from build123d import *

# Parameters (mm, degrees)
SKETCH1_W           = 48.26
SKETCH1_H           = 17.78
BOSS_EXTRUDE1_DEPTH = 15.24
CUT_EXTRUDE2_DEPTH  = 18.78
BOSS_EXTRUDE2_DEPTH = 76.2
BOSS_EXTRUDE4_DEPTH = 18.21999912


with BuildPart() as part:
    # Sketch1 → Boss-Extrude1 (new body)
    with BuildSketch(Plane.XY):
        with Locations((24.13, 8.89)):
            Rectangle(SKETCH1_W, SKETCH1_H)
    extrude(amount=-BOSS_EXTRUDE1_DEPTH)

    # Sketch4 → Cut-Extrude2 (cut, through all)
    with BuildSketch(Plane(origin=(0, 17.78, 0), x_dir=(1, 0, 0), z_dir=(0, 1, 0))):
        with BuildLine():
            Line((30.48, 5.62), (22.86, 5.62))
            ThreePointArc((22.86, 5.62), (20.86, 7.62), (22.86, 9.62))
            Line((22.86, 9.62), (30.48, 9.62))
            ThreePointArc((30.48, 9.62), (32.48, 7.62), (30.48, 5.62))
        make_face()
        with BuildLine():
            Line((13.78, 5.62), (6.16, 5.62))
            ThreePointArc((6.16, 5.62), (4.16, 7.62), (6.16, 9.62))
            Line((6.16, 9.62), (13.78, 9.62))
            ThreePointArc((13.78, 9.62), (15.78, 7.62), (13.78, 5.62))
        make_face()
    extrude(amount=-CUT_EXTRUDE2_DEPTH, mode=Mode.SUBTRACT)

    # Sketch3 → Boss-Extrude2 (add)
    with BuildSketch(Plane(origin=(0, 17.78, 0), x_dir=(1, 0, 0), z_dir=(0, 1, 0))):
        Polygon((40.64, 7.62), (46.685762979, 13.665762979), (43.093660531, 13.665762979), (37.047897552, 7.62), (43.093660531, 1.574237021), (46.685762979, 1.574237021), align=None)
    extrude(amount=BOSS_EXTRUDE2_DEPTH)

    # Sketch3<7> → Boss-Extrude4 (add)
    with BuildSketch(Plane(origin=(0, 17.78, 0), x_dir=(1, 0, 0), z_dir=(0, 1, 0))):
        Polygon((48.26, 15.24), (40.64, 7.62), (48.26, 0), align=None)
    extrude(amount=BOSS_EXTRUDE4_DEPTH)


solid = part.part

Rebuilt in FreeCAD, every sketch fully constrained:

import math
import FreeCAD as App
import Part
import Sketcher
from FreeCAD import Vector
Q = App.Units.Quantity

doc = App.newDocument("Part")
body = doc.addObject("PartDesign::Body", "Body")

# Sketch on XY plane
sketch1 = body.newObject("Sketcher::SketchObject", "Sketch")
sketch1.AttachmentSupport = (doc.getObject("XY_Plane"), [""])
sketch1.MapMode = "FlatFace"
sketch1.addGeometry(Part.LineSegment(Vector(0, 18, 0), Vector(0, 0, 0)), False)
sketch1.addGeometry(Part.LineSegment(Vector(0, 0, 0), Vector(48, 0, 0)), False)
sketch1.addGeometry(Part.LineSegment(Vector(48, 0, 0), Vector(48, 18, 0)), False)
sketch1.addGeometry(Part.LineSegment(Vector(48, 18, 0), Vector(0, 18, 0)), False)
sketch1.addConstraint(Sketcher.Constraint("Coincident", 0, 2, 1, 1))
sketch1.addConstraint(Sketcher.Constraint("Coincident", 1, 2, 2, 1))
sketch1.addConstraint(Sketcher.Constraint("Coincident", 2, 2, 3, 1))
sketch1.addConstraint(Sketcher.Constraint("Coincident", 3, 2, 0, 1))
sketch1.addConstraint(Sketcher.Constraint("Vertical", 0))
sketch1.addConstraint(Sketcher.Constraint("Horizontal", 1))
sketch1.addConstraint(Sketcher.Constraint("Vertical", 2))
sketch1.addConstraint(Sketcher.Constraint("Horizontal", 3))
sketch1.addConstraint(Sketcher.Constraint("Coincident", 0, 2, -1, 1))
sketch1.addConstraint(Sketcher.Constraint("DistanceX", 1, 1, 1, 2, Q("1.9 in")))
sketch1.addConstraint(Sketcher.Constraint("DistanceY", 0, 2, 0, 1, Q("0.7 in")))
pad1 = body.newObject("PartDesign::Pad", "Pad")
pad1.Profile = sketch1
pad1.Length = Q("0.6 in")
pad1.Reversed = True

# Sketch on XZ plane
sketch2 = body.newObject("Sketcher::SketchObject", "Sketch001")
sketch2.AttachmentSupport = (doc.getObject("XZ_Plane"), [""])
sketch2.MapMode = "FlatFace"
sketch2.AttachmentOffset = App.Placement(Vector(0, 0, -0.7 * 25.4), App.Rotation())
sketch2.addGeometry(Part.LineSegment(Vector(22.9, -5.6, 0), Vector(30.5, -5.6, 0)), False)
sketch2.addGeometry(Part.ArcOfCircle(Part.Circle(Vector(30.5, -7.6, 0), Vector(0, 0, 1), 2), math.radians(-90), math.radians(90)), False)
sketch2.addGeometry(Part.LineSegment(Vector(30.5, -9.6, 0), Vector(22.9, -9.6, 0)), False)
sketch2.addGeometry(Part.ArcOfCircle(Part.Circle(Vector(22.9, -7.6, 0), Vector(0, 0, 1), 2), math.radians(90), math.radians(270)), False)
sketch2.addGeometry(Part.LineSegment(Vector(6.2, -5.6, 0), Vector(13.8, -5.6, 0)), False)
sketch2.addGeometry(Part.ArcOfCircle(Part.Circle(Vector(13.8, -7.6, 0), Vector(0, 0, 1), 2), math.radians(-90), math.radians(90)), False)
sketch2.addGeometry(Part.LineSegment(Vector(13.8, -9.6, 0), Vector(6.2, -9.6, 0)), False)
sketch2.addGeometry(Part.ArcOfCircle(Part.Circle(Vector(6.2, -7.6, 0), Vector(0, 0, 1), 2), math.radians(90), math.radians(270)), False)
sketch2.addConstraint(Sketcher.Constraint("Tangent", 0, 2, 1, 2))
sketch2.addConstraint(Sketcher.Constraint("Tangent", 1, 1, 2, 1))
sketch2.addConstraint(Sketcher.Constraint("Tangent", 2, 2, 3, 2))
sketch2.addConstraint(Sketcher.Constraint("Tangent", 3, 1, 0, 1))
sketch2.addConstraint(Sketcher.Constraint("Tangent", 4, 2, 5, 2))
sketch2.addConstraint(Sketcher.Constraint("Tangent", 5, 1, 6, 1))
sketch2.addConstraint(Sketcher.Constraint("Tangent", 6, 2, 7, 2))
sketch2.addConstraint(Sketcher.Constraint("Tangent", 7, 1, 4, 1))
sketch2.addConstraint(Sketcher.Constraint("Horizontal", 0))
sketch2.addConstraint(Sketcher.Constraint("Horizontal", 2))
sketch2.addConstraint(Sketcher.Constraint("Horizontal", 4))
sketch2.addConstraint(Sketcher.Constraint("Horizontal", 6))
sketch2.addConstraint(Sketcher.Constraint("Equal", 3, 5))
sketch2.addConstraint(Sketcher.Constraint("Horizontal", 3, 3, 5, 3))
sketch2.addConstraint(Sketcher.Constraint("Equal", 2, 4))
sketch2.addConstraint(Sketcher.Constraint("DistanceX", 0, 1, 0, 2, Q("0.3 in")))
sketch2.addConstraint(Sketcher.Constraint("DistanceX", -1, 1, 1, 3, Q("1.2 in")))
sketch2.addConstraint(Sketcher.Constraint("DistanceY", 1, 3, -1, 1, Q("0.3 in")))
sketch2.addConstraint(Sketcher.Constraint("Radius", 1, 2.0))
sketch2.addConstraint(Sketcher.Constraint("DistanceX", -1, 1, 5, 3, 13.78))
pocket1 = body.newObject("PartDesign::Pocket", "Pocket")
pocket1.Profile = sketch2
pocket1.Type = "ThroughAll"
pocket1.Reversed = True

# Sketch on XZ plane
sketch3 = body.newObject("Sketcher::SketchObject", "Sketch002")
sketch3.AttachmentSupport = (doc.getObject("XZ_Plane"), [""])
sketch3.MapMode = "FlatFace"
sketch3.AttachmentOffset = App.Placement(Vector(0, 0, -0.7 * 25.4), App.Rotation())
sketch3.addGeometry(Part.LineSegment(Vector(40.6, -7.6, 0), Vector(46.7, -13.7, 0)), False)
sketch3.addGeometry(Part.LineSegment(Vector(46.7, -13.7, 0), Vector(43.1, -13.7, 0)), False)
sketch3.addGeometry(Part.LineSegment(Vector(43.1, -13.7, 0), Vector(37, -7.6, 0)), False)
sketch3.addGeometry(Part.LineSegment(Vector(37, -7.6, 0), Vector(43.1, -1.6, 0)), False)
sketch3.addGeometry(Part.LineSegment(Vector(43.1, -1.6, 0), Vector(46.7, -1.6, 0)), False)
sketch3.addGeometry(Part.LineSegment(Vector(46.7, -1.6, 0), Vector(40.6, -7.6, 0)), False)
sketch3.addConstraint(Sketcher.Constraint("Coincident", 0, 2, 1, 1))
sketch3.addConstraint(Sketcher.Constraint("Coincident", 1, 2, 2, 1))
sketch3.addConstraint(Sketcher.Constraint("Coincident", 2, 2, 3, 1))
sketch3.addConstraint(Sketcher.Constraint("Coincident", 3, 2, 4, 1))
sketch3.addConstraint(Sketcher.Constraint("Coincident", 4, 2, 5, 1))
sketch3.addConstraint(Sketcher.Constraint("Coincident", 5, 2, 0, 1))
sketch3.addConstraint(Sketcher.Constraint("Horizontal", 1))
sketch3.addConstraint(Sketcher.Constraint("Horizontal", 4))
sketch3.addConstraint(Sketcher.Constraint("Parallel", 0, 2))
sketch3.addConstraint(Sketcher.Constraint("Perpendicular", 2, 3))
sketch3.addConstraint(Sketcher.Constraint("Parallel", 3, 5))
sketch3.addConstraint(Sketcher.Constraint("Horizontal", 2, 2, 5, 2))
sketch3.addConstraint(Sketcher.Constraint("Vertical", 1, 2, 3, 2))
sketch3.addConstraint(Sketcher.Constraint("Equal", 2, 3))
sketch3.addConstraint(Sketcher.Constraint("DistanceY", 2, 2, -1, 1, Q("0.3 in")))
sketch3.addConstraint(Sketcher.Constraint("DistanceX", -1, 1, 5, 2, Q("1.6 in")))
sketch3.addConstraint(Sketcher.Constraint("Distance", 0, 8.55))
sketch3.addConstraint(Sketcher.Constraint("DistanceX", 1, 2, 1, 1, 3.592102))
pad2 = body.newObject("PartDesign::Pad", "Pad001")
pad2.Profile = sketch3
pad2.Length = Q("3 in")
pad2.Reversed = True

# Sketch on XZ plane
sketch4 = body.newObject("Sketcher::SketchObject", "Sketch003")
sketch4.AttachmentSupport = (doc.getObject("XZ_Plane"), [""])
sketch4.MapMode = "FlatFace"
sketch4.AttachmentOffset = App.Placement(Vector(0, 0, -0.7 * 25.4), App.Rotation())
sketch4.addGeometry(Part.LineSegment(Vector(48, -15, 0), Vector(41, -8, 0)), False)
sketch4.addGeometry(Part.LineSegment(Vector(41, -8, 0), Vector(48, 0, 0)), False)
sketch4.addGeometry(Part.LineSegment(Vector(48, 0, 0), Vector(48, -15, 0)), False)
sketch4.addConstraint(Sketcher.Constraint("Coincident", 0, 2, 1, 1))
sketch4.addConstraint(Sketcher.Constraint("Coincident", 1, 2, 2, 1))
sketch4.addConstraint(Sketcher.Constraint("Coincident", 2, 2, 0, 1))
sketch4.addConstraint(Sketcher.Constraint("Vertical", 2))
sketch4.addConstraint(Sketcher.Constraint("PointOnObject", 1, 2, -1))
sketch4.addConstraint(Sketcher.Constraint("Perpendicular", 0, 1))
sketch4.addConstraint(Sketcher.Constraint("Equal", 0, 1))
sketch4.addConstraint(Sketcher.Constraint("DistanceY", 2, 2, 2, 1, Q("0.6 in")))
sketch4.addConstraint(Sketcher.Constraint("DistanceX", -1, 1, 0, 2, Q("1.6 in")))
pad3 = body.newObject("PartDesign::Pad", "Pad002")
pad3.Profile = sketch4
pad3.Length = 18.219999
pad3.Reversed = True

doc.recompute()
